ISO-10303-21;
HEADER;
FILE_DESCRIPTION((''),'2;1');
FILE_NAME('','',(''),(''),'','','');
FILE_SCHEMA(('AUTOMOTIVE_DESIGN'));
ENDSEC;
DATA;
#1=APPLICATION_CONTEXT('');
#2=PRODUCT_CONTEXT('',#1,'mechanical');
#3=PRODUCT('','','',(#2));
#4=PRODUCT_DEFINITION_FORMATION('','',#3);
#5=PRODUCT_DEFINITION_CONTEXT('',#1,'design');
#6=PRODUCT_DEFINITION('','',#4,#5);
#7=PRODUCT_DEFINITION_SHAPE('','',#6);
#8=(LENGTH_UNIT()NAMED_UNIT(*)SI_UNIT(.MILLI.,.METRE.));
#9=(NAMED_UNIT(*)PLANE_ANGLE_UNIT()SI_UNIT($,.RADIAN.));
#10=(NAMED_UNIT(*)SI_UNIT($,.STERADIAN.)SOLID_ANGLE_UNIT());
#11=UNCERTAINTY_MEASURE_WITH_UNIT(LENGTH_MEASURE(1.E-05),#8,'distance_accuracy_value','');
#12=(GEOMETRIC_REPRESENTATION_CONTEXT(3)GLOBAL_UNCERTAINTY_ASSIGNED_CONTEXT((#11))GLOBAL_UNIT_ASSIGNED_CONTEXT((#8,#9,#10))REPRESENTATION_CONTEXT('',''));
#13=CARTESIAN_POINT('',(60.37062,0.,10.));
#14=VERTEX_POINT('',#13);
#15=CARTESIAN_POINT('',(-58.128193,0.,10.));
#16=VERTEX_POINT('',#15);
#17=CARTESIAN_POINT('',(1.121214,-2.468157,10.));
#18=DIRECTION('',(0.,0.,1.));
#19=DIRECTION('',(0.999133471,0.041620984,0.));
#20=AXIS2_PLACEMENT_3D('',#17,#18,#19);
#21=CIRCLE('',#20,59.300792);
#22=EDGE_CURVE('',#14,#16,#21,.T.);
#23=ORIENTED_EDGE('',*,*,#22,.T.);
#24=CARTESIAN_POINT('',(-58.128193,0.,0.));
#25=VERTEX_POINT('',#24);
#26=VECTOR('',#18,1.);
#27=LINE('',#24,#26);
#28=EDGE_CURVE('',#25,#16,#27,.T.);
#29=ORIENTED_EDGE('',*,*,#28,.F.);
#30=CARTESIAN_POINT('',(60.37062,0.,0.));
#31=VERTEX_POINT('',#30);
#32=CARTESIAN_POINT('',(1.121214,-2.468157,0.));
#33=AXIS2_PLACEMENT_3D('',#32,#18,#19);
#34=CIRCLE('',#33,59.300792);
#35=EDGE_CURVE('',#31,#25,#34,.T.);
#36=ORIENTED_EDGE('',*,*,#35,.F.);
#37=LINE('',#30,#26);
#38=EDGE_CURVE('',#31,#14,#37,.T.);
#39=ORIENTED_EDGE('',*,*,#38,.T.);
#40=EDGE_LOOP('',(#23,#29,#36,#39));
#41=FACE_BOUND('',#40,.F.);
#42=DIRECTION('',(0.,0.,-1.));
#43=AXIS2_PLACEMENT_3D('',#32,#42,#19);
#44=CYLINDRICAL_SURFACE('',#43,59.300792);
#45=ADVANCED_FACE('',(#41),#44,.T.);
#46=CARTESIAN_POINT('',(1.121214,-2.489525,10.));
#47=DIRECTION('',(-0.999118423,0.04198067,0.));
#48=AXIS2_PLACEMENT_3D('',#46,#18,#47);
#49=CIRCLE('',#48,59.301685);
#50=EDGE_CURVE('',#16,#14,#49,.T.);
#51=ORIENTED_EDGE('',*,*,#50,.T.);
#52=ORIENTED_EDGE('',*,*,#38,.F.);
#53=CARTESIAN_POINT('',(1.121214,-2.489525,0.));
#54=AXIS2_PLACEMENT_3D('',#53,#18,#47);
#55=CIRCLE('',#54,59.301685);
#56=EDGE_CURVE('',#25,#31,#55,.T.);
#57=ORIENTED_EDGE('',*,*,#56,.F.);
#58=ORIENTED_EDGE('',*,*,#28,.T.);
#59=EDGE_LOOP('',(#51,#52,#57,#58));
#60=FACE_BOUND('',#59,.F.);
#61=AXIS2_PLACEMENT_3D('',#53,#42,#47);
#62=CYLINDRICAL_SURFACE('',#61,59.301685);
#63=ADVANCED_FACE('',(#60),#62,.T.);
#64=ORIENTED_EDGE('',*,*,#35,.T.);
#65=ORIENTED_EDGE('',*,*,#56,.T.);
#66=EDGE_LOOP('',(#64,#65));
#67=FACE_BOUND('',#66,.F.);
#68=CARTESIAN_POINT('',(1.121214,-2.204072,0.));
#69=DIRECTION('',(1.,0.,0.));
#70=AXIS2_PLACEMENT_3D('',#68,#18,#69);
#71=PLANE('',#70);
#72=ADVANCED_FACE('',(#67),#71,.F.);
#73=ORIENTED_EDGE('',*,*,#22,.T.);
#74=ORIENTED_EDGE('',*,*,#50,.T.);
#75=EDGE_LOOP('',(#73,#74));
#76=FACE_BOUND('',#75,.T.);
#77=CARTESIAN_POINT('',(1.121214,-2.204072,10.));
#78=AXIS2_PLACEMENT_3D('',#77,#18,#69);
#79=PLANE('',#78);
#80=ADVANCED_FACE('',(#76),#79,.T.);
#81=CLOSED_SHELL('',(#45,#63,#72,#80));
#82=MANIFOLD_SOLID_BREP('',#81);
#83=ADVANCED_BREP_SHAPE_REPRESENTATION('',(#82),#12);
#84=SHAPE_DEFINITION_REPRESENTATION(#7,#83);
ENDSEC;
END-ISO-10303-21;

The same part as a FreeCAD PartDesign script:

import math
import FreeCAD as App
import Part
import Sketcher
Q = App.Units.Quantity

doc = App.newDocument("Part")
body = doc.addObject("PartDesign::Body", "Body")

# Sketch on XY plane
sketch1 = body.newObject("Sketcher::SketchObject", "Sketch")
sketch1.AttachmentSupport = (doc.getObject("XY_Plane"), [""])
sketch1.MapMode = "FlatFace"
sketch1.addGeometry([
    Part.ArcOfCircle(Part.Circle(App.Vector(1, -2, 0), App.Vector(0, 0, 1), 59), math.radians(178), math.radians(362)),
    Part.ArcOfCircle(Part.Circle(App.Vector(1, -2, 0), App.Vector(0, 0, 1), 59), math.radians(2), math.radians(178)),
], False)
sketch1.addConstraint([
    Sketcher.Constraint("Coincident", 0, 1, 1, 2),
    Sketcher.Constraint("Coincident", 1, 1, 0, 2),
    Sketcher.Constraint("PointOnObject", 0, 1, -1),
    Sketcher.Constraint("PointOnObject", 1, 1, -1),
    Sketcher.Constraint("Radius", 0, Q("59.301685 mm")),
    Sketcher.Constraint("Radius", 1, Q("59.300792 mm")),
    Sketcher.Constraint("DistanceX", -1, 1, 1, 1, Q("60.37062 mm")),
    Sketcher.Constraint("DistanceX", -1, 1, 0, 3, Q("1.121214 mm")),
])
pad1 = body.newObject("PartDesign::Pad", "Pad")
pad1.Profile = sketch1
pad1.Length = 10

doc.recompute()
